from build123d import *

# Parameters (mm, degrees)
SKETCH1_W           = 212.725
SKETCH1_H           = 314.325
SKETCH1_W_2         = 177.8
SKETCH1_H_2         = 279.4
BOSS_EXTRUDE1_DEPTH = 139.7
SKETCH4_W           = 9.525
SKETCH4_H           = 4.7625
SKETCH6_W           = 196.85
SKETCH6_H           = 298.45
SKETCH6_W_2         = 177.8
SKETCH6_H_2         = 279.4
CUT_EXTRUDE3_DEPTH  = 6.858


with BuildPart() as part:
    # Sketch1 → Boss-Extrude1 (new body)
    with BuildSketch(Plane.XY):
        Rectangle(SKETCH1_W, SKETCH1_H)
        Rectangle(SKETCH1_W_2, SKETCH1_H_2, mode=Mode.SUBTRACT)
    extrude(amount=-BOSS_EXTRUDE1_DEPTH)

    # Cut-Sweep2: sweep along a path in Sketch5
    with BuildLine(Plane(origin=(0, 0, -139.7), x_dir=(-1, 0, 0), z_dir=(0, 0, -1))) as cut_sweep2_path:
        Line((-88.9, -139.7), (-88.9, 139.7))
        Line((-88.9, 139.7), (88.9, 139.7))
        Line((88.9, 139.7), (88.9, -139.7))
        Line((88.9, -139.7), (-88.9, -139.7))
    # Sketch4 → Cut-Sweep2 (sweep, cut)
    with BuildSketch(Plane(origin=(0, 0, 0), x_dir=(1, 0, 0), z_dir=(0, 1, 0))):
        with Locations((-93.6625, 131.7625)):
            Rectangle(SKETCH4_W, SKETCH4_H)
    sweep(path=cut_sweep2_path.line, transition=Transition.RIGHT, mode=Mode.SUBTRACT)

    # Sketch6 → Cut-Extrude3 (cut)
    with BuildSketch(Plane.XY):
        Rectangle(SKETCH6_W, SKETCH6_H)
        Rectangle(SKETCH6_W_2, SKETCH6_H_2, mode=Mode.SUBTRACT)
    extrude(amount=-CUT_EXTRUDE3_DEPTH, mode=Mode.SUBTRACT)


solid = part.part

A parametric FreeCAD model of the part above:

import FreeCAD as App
import Part
import Sketcher

V = App.Vector
Q = App.Units.Quantity


def add_polygon(sketch, points):
    """Adds a closed chain of lines whose ends are joined by coincident constraints."""
    first, n = sketch.GeometryCount, len(points)
    for a, b in zip(points, points[1:] + points[:1]):
        sketch.addGeometry(Part.LineSegment(App.Vector(*a, 0), App.Vector(*b, 0)), False)
    for i in range(n):
        sketch.addConstraint(Sketcher.Constraint("Coincident", first + i, 2, first + (i + 1) % n, 1))

doc = App.newDocument("Part")
body = doc.addObject("PartDesign::Body", "Body")

sketch1 = body.newObject("Sketcher::SketchObject", "Sketch")
sketch1.AttachmentSupport = (doc.getObject("XY_Plane"), [""])
sketch1.MapMode = "FlatFace"
add_polygon(sketch1, [(-106, 157), (-106, -157), (106, -157), (106, 157)])
add_polygon(sketch1, [(89, -140), (-89, -140), (-89, 140), (89, 140)])
sketch1.addConstraint([
    Sketcher.Constraint("Vertical", 0),
    Sketcher.Constraint("Horizontal", 1),
    Sketcher.Constraint("Vertical", 2),
    Sketcher.Constraint("Horizontal", 3),
    Sketcher.Constraint("Horizontal", 4),
    Sketcher.Constraint("Vertical", 5),
    Sketcher.Constraint("Horizontal", 6),
    Sketcher.Constraint("Vertical", 7),
    Sketcher.Constraint("Symmetric", 0, 2, 2, 2, -1, 1),
    Sketcher.Constraint("Symmetric", 4, 2, 6, 2, -1, 1),
    Sketcher.Constraint("DistanceX", 4, 2, 4, 1, Q("7 in")),
    Sketcher.Constraint("DistanceY", 5, 1, 5, 2, Q("11 in")),
    Sketcher.Constraint("DistanceX", 1, 1, 1, 2, Q("8.375 in")),
    Sketcher.Constraint("DistanceY", 0, 2, 0, 1, Q("12.375 in")),
])
pad1 = body.newObject("PartDesign::Pad", "Pad")
pad1.Profile = sketch1
pad1.Length = Q("5.5 in")
pad1.Reversed = True

sketch2 = body.newObject("Sketcher::SketchObject", "Sketch001")
sketch2.AttachmentSupport = (doc.getObject("XZ_Plane"), [""])
sketch2.MapMode = "FlatFace"
add_polygon(sketch2, [(-98.4, -134.1), (-98.4, -129.4), (-88.9, -129.4), (-88.9, -134.1)])
sketch2.addConstraint([
    Sketcher.Constraint("Vertical", 0),
    Sketcher.Constraint("Horizontal", 1),
    Sketcher.Constraint("Vertical", 2),
    Sketcher.Constraint("Horizontal", 3),
    Sketcher.Constraint("DistanceX", 1, 2, -1, 1, Q("3.5 in")),
    Sketcher.Constraint("DistanceX", 1, 1, 1, 2, Q("0.375 in")),
    Sketcher.Constraint("DistanceY", 0, 1, 0, 2, Q("0.1875 in")),
    Sketcher.Constraint("DistanceY", 0, 2, -1, 1, Q("5.09375 in")),
])

sketch3 = body.newObject("Sketcher::SketchObject", "Sketch002")
sketch3.AttachmentSupport = (doc.getObject("XY_Plane"), [""])
sketch3.MapMode = "FlatFace"
sketch3.AttachmentOffset = App.Placement(V(0, 0, -5.5 * 25.4), App.Rotation())
add_polygon(sketch3, [(89, -140), (89, 140), (-89, 140), (-89, -140)])
sketch3.addConstraint([
    Sketcher.Constraint("Vertical", 0),
    Sketcher.Constraint("Horizontal", 1),
    Sketcher.Constraint("Vertical", 2),
    Sketcher.Constraint("Horizontal", 3),
    Sketcher.Constraint("Symmetric", 0, 2, 2, 2, -1, 1),
    Sketcher.Constraint("DistanceX", 1, 2, 1, 1, Q("7 in")),
    Sketcher.Constraint("DistanceY", 0, 1, 0, 2, Q("11 in")),
])
doc.recompute()

subtractivepipe = body.newObject("PartDesign::SubtractivePipe", "SubtractivePipe")
subtractivepipe.Profile = sketch2
subtractivepipe.Spine = (sketch3, ["Edge1", "Edge2", "Edge3", "Edge4"])
subtractivepipe.Transition = "Right corner"

sketch4 = body.newObject("Sketcher::SketchObject", "Sketch003")
sketch4.AttachmentSupport = (doc.getObject("XY_Plane"), [""])
sketch4.MapMode = "FlatFace"
add_polygon(sketch4, [(-98, 149), (-98, -149), (98, -149), (98, 149)])
add_polygon(sketch4, [(89, -140), (-89, -140), (-89, 140), (89, 140)])
sketch4.addConstraint([
    Sketcher.Constraint("Vertical", 0),
    Sketcher.Constraint("Horizontal", 1),
    Sketcher.Constraint("Vertical", 2),
    Sketcher.Constraint("Horizontal", 3),
    Sketcher.Constraint("Horizontal", 4),
    Sketcher.Constraint("Vertical", 5),
    Sketcher.Constraint("Horizontal", 6),
    Sketcher.Constraint("Vertical", 7),
    Sketcher.Constraint("Symmetric", 0, 2, 2, 2, -1, 1),
    Sketcher.Constraint("Symmetric", 4, 2, 6, 2, -1, 1),
    Sketcher.Constraint("DistanceX", 4, 2, 4, 1, Q("7 in")),
    Sketcher.Constraint("DistanceY", 5, 1, 5, 2, Q("11 in")),
    Sketcher.Constraint("DistanceX", 1, 1, 1, 2, Q("7.75 in")),
    Sketcher.Constraint("DistanceY", 0, 2, 0, 1, Q("11.75 in")),
])
pocket1 = body.newObject("PartDesign::Pocket", "Pocket")
pocket1.Profile = sketch4
pocket1.Length = Q("0.27 in")

doc.recompute()
